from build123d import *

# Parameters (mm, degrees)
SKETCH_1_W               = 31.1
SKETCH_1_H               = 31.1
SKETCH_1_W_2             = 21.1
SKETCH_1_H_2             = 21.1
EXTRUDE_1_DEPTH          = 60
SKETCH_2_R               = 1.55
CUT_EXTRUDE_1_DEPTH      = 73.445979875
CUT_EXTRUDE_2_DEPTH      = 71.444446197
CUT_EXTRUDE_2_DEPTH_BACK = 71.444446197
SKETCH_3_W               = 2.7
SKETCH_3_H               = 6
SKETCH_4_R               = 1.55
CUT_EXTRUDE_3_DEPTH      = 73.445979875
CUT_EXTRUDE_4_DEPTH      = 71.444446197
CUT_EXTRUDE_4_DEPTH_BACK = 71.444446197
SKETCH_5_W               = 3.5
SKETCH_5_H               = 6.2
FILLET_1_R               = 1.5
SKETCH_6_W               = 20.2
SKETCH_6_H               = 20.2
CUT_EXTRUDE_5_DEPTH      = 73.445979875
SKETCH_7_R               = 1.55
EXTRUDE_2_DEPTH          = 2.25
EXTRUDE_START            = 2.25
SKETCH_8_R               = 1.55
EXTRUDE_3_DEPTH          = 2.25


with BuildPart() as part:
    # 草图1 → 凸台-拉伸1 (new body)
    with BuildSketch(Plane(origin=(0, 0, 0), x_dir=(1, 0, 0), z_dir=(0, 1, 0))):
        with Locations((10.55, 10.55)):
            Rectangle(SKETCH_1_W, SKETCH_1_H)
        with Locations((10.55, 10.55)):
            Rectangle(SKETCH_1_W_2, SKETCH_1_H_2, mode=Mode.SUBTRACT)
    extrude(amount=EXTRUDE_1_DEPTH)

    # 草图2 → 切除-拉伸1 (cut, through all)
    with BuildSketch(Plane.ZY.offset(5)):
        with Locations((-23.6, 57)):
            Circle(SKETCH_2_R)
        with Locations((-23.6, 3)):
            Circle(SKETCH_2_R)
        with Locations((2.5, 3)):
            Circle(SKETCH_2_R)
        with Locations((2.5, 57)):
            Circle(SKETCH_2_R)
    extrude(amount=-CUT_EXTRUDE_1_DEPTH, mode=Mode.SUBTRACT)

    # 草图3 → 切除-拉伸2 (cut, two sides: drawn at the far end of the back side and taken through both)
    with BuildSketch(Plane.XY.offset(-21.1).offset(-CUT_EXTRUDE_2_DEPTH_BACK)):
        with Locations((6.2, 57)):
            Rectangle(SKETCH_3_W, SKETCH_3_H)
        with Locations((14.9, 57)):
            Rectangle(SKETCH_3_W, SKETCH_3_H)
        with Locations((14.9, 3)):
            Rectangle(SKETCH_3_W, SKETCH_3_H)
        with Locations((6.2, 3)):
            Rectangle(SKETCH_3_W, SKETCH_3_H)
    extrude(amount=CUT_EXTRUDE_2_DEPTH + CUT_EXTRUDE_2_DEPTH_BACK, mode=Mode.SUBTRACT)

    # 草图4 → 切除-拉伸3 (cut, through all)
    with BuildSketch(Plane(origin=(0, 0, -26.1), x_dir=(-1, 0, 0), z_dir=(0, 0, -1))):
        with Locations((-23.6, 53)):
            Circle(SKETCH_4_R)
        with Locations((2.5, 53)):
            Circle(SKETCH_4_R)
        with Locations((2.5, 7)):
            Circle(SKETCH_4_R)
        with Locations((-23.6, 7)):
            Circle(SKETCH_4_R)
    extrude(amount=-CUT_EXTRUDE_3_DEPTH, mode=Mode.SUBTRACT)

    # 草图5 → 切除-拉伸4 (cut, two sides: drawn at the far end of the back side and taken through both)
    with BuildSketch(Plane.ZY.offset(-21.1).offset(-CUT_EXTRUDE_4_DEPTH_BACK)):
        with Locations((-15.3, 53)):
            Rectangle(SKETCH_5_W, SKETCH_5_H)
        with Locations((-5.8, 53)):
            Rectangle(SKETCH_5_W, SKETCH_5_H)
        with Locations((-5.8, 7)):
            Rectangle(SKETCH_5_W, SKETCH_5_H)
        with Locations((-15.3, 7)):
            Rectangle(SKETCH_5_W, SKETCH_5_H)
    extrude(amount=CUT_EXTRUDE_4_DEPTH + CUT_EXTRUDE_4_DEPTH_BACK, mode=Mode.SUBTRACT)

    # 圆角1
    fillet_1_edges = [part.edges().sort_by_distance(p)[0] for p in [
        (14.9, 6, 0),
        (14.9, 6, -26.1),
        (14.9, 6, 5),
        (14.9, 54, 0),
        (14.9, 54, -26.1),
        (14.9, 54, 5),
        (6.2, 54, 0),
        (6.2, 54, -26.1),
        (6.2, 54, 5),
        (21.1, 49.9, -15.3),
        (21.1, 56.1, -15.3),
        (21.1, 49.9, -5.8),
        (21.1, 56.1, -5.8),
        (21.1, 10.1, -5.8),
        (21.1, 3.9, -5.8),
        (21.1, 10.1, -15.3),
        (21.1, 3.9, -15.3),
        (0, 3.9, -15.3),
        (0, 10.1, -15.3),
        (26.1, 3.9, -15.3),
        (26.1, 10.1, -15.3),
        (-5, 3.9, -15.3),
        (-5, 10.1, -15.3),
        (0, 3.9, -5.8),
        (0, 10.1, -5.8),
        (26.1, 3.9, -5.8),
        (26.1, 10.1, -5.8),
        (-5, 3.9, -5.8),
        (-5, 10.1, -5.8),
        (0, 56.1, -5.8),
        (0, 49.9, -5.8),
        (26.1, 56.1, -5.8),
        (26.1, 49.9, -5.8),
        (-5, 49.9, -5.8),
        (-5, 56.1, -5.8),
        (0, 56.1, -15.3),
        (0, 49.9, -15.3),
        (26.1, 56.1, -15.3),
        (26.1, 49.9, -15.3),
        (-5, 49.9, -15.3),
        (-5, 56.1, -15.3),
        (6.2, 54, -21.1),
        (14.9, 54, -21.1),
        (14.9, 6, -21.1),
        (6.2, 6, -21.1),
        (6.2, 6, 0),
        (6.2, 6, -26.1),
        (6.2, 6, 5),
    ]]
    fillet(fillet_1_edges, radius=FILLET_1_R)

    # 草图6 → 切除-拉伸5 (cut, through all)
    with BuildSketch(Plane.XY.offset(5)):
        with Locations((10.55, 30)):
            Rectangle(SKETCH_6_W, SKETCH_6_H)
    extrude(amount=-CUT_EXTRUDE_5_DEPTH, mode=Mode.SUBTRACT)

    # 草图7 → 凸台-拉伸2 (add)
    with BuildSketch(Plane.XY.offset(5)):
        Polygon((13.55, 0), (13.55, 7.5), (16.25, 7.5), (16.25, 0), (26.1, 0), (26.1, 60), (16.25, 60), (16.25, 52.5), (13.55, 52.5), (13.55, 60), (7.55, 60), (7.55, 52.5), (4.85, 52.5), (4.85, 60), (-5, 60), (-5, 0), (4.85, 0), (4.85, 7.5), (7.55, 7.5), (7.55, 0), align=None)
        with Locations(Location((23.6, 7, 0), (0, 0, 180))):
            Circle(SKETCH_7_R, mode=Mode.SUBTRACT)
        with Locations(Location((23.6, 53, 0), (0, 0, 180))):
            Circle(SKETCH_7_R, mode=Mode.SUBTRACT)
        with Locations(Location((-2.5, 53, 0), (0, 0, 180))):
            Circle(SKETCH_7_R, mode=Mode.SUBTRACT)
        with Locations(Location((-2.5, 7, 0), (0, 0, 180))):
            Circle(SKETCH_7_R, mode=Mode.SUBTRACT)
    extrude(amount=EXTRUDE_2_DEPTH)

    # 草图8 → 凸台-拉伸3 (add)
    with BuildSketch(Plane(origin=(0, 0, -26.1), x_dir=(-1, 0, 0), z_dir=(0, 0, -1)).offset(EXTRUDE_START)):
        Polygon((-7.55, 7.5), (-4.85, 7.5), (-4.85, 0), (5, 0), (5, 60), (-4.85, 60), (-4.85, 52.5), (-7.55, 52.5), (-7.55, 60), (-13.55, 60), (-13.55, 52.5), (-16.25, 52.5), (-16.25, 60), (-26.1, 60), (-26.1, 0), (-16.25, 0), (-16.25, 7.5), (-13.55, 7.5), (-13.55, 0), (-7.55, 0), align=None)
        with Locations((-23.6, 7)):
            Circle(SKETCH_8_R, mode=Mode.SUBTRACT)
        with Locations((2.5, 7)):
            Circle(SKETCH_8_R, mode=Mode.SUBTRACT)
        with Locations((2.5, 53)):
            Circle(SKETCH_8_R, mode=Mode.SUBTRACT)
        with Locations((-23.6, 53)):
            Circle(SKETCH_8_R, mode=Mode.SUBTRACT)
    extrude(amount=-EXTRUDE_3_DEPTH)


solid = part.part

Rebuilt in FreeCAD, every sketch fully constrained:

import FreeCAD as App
import Part
import Sketcher
from FreeCAD import Vector
Q = App.Units.Quantity


def edges_at(feature, points):
    """Names of the edges that pass closest to the given points."""
    edges = feature.Shape.Edges
    near = lambda p: min(range(len(edges)), key=lambda i: edges[i].distToShape(Part.Vertex(*p))[0])
    return sorted({f"Edge{near(p) + 1}" for p in points})

doc = App.newDocument("Part")
params = doc.addObject("Spreadsheet::Sheet", "Params")
for row, (alias, value) in enumerate([
    ("sketch1_width", "31.1 mm"),
    ("sketch1_width2", "21.1 mm"),
    ("pad1_length", "60 mm"),
    ("sketch2_diameter", "3.1 mm"),
    ("sketch3_height", "6 mm"),
    ("sketch3_width", "2.7 mm"),
    ("sketch4_diameter", "3.1 mm"),
    ("sketch5_width", "6.2 mm"),
    ("sketch5_height", "3.5 mm"),
    ("fillet_radius", "1.5 mm"),
    ("sketch6_width", "20.2 mm"),
    ("sketch7_diameter", "3.1 mm"),
    ("sketch7_width", "6 mm"),
    ("sketch7_height", "60 mm"),
    ("sketch7_width2", "2.7 mm"),
    ("sketch7_height2", "7.5 mm"),
    ("pad2_length", "2.25 mm"),
    ("sketch8_diameter", "3.1 mm"),
    ("sketch8_width", "6 mm"),
    ("sketch8_height", "60 mm"),
    ("sketch8_width2", "2.7 mm"),
    ("sketch8_height2", "7.5 mm"),
    ("pad3_length", "2.25 mm"),
], start=1):
    params.set(f"A{row}", alias)
    params.set(f"B{row}", "=" + value)
    params.setAlias(f"B{row}", alias)

body = doc.addObject("PartDesign::Body", "Body")

# Sketch on XZ plane
sketch1 = body.newObject("Sketcher::SketchObject", "Sketch")
sketch1.AttachmentSupport = (doc.getObject("XZ_Plane"), [""])
sketch1.MapMode = "FlatFace"
sketch1.addGeometry([
    Part.LineSegment(Vector(-5, -26, 0), Vector(-5, 5, 0)),  # 0
    Part.LineSegment(Vector(-5, 5, 0), Vector(26, 5, 0)),  # 1
    Part.LineSegment(Vector(26, 5, 0), Vector(26, -26, 0)),  # 2
    Part.LineSegment(Vector(26, -26, 0), Vector(-5, -26, 0)),  # 3
    Part.LineSegment(Vector(21, 0, 0), Vector(0, 0, 0)),  # 4
    Part.LineSegment(Vector(0, 0, 0), Vector(0, -21, 0)),  # 5
    Part.LineSegment(Vector(0, -21, 0), Vector(21, -21, 0)),  # 6
    Part.LineSegment(Vector(21, -21, 0), Vector(21, 0, 0)),  # 7
], False)
sketch1.addConstraint([
    Sketcher.Constraint("Coincident", 0, 2, 1, 1),
    Sketcher.Constraint("Coincident", 1, 2, 2, 1),
    Sketcher.Constraint("Coincident", 2, 2, 3, 1),
    Sketcher.Constraint("Coincident", 3, 2, 0, 1),
    Sketcher.Constraint("Coincident", 4, 2, 5, 1),
    Sketcher.Constraint("Coincident", 5, 2, 6, 1),
    Sketcher.Constraint("Coincident", 6, 2, 7, 1),
    Sketcher.Constraint("Coincident", 7, 2, 4, 1),
    Sketcher.Constraint("Vertical", 0),
    Sketcher.Constraint("Horizontal", 1),
    Sketcher.Constraint("Vertical", 2),
    Sketcher.Constraint("Horizontal", 3),
    Sketcher.Constraint("Horizontal", 4),
    Sketcher.Constraint("Vertical", 5),
    Sketcher.Constraint("Horizontal", 6),
    Sketcher.Constraint("Vertical", 7),
    Sketcher.Constraint("Coincident", 4, 2, -1, 1),
    Sketcher.Constraint("Equal", 3, 0),
    Sketcher.Constraint("Equal", 6, 5),
    Sketcher.Constraint("DistanceX", 1, 1, 1, 2, Q("31.1 mm")),
    Sketcher.Constraint("DistanceX", 4, 2, 4, 1, Q("21.1 mm")),
    Sketcher.Constraint("DistanceX", 0, 2, -1, 1, Q("5 mm")),
    Sketcher.Constraint("DistanceY", -1, 1, 0, 2, Q("5 mm")),
])
sketch1.setExpression("Constraints[19]", "Params.sketch1_width")
sketch1.setExpression("Constraints[20]", "Params.sketch1_width2")
pad1 = body.newObject("PartDesign::Pad", "Pad")
pad1.Profile = sketch1
pad1.setExpression("Length", "Params.pad1_length")
pad1.Reversed = True

# Sketch on YZ plane
sketch2 = body.newObject("Sketcher::SketchObject", "Sketch001")
sketch2.AttachmentSupport = (doc.getObject("YZ_Plane"), [""])
sketch2.MapMode = "FlatFace"
sketch2.AttachmentOffset = App.Placement(Vector(0, 0, -5), App.Rotation())
sketch2.addGeometry([
    Part.Circle(Vector(57, -23.6, 0), Vector(0, 0, 1), 1.6),
    Part.Circle(Vector(3, -23.6, 0), Vector(0, 0, 1), 1.6),
    Part.Circle(Vector(3, 2.5, 0), Vector(0, 0, 1), 1.6),
    Part.Circle(Vector(57, 2.5, 0), Vector(0, 0, 1), 1.6),
], False)
sketch2.addConstraint([
    Sketcher.Constraint("Equal", 0, 1),
    Sketcher.Constraint("Equal", 1, 2),
    Sketcher.Constraint("Equal", 2, 3),
    Sketcher.Constraint("Horizontal", 0, 3, 1, 3),
    Sketcher.Constraint("Horizontal", 2, 3, 3, 3),
    Sketcher.Constraint("Vertical", 1, 3, 2, 3),
    Sketcher.Constraint("Vertical", 0, 3, 3, 3),
    Sketcher.Constraint("Diameter", 0, Q("3.1 mm")),
    Sketcher.Constraint("DistanceX", -1, 1, 0, 3, Q("57 mm")),
    Sketcher.Constraint("DistanceX", -1, 1, 1, 3, Q("3 mm")),
    Sketcher.Constraint("DistanceY", 0, 3, -1, 1, Q("23.6 mm")),
    Sketcher.Constraint("DistanceY", -1, 1, 2, 3, Q("2.5 mm")),
])
sketch2.setExpression("Constraints[7]", "Params.sketch2_diameter")
pocket1 = body.newObject("PartDesign::Pocket", "Pocket")
pocket1.Profile = sketch2
pocket1.Type = "ThroughAll"
pocket1.Reversed = True

# Sketch on XY plane
sketch3 = body.newObject("Sketcher::SketchObject", "Sketch002")
sketch3.AttachmentSupport = (doc.getObject("XY_Plane"), [""])
sketch3.MapMode = "FlatFace"
sketch3.AttachmentOffset = App.Placement(Vector(0, 0, -21.1), App.Rotation())
sketch3.addGeometry([
    Part.LineSegment(Vector(4.8, 60, 0), Vector(4.8, 54, 0)),  # 0
    Part.LineSegment(Vector(4.8, 54, 0), Vector(7.5, 54, 0)),  # 1
    Part.LineSegment(Vector(7.5, 54, 0), Vector(7.5, 60, 0)),  # 2
    Part.LineSegment(Vector(7.5, 60, 0), Vector(4.8, 60, 0)),  # 3
    Part.LineSegment(Vector(13.6, 60, 0), Vector(13.6, 54, 0)),  # 4
    Part.LineSegment(Vector(13.6, 54, 0), Vector(16.2, 54, 0)),  # 5
    Part.LineSegment(Vector(16.2, 54, 0), Vector(16.2, 60, 0)),  # 6
    Part.LineSegment(Vector(16.2, 60, 0), Vector(13.6, 60, 0)),  # 7
    Part.LineSegment(Vector(13.6, 6, 0), Vector(13.6, 0, 0)),  # 8
    Part.LineSegment(Vector(13.6, 0, 0), Vector(16.2, 0, 0)),  # 9
    Part.LineSegment(Vector(16.2, 0, 0), Vector(16.2, 6, 0)),  # 10
    Part.LineSegment(Vector(16.2, 6, 0), Vector(13.6, 6, 0)),  # 11
    Part.LineSegment(Vector(4.8, 6, 0), Vector(4.8, 0, 0)),  # 12
    Part.LineSegment(Vector(4.8, 0, 0), Vector(7.5, 0, 0)),  # 13
    Part.LineSegment(Vector(7.5, 0, 0), Vector(7.5, 6, 0)),  # 14
    Part.LineSegment(Vector(7.5, 6, 0), Vector(4.8, 6, 0)),  # 15
], False)
sketch3.addConstraint([
    Sketcher.Constraint("Coincident", 0, 2, 1, 1),
    Sketcher.Constraint("Coincident", 1, 2, 2, 1),
    Sketcher.Constraint("Coincident", 2, 2, 3, 1),
    Sketcher.Constraint("Coincident", 3, 2, 0, 1),
    Sketcher.Constraint("Coincident", 4, 2, 5, 1),
    Sketcher.Constraint("Coincident", 5, 2, 6, 1),
    Sketcher.Constraint("Coincident", 6, 2, 7, 1),
    Sketcher.Constraint("Coincident", 7, 2, 4, 1),
    Sketcher.Constraint("Coincident", 8, 2, 9, 1),
    Sketcher.Constraint("Coincident", 9, 2, 10, 1),
    Sketcher.Constraint("Coincident", 10, 2, 11, 1),
    Sketcher.Constraint("Coincident", 11, 2, 8, 1),
    Sketcher.Constraint("Coincident", 12, 2, 13, 1),
    Sketcher.Constraint("Coincident", 13, 2, 14, 1),
    Sketcher.Constraint("Coincident", 14, 2, 15, 1),
    Sketcher.Constraint("Coincident", 15, 2, 12, 1),
    Sketcher.Constraint("Vertical", 0),
    Sketcher.Constraint("Horizontal", 1),
    Sketcher.Constraint("Vertical", 2),
    Sketcher.Constraint("Horizontal", 3),
    Sketcher.Constraint("Vertical", 4),
    Sketcher.Constraint("Horizontal", 5),
    Sketcher.Constraint("Vertical", 6),
    Sketcher.Constraint("Horizontal", 7),
    Sketcher.Constraint("Vertical", 8),
    Sketcher.Constraint("Horizontal", 9),
    Sketcher.Constraint("Vertical", 10),
    Sketcher.Constraint("Horizontal", 11),
    Sketcher.Constraint("Vertical", 12),
    Sketcher.Constraint("Horizontal", 13),
    Sketcher.Constraint("Vertical", 14),
    Sketcher.Constraint("Horizontal", 15),
    Sketcher.Constraint("PointOnObject", 8, 2, -1),
    Sketcher.Constraint("PointOnObject", 12, 2, -1),
    Sketcher.Constraint("Horizontal", 1, 2, 4, 2),
    Sketcher.Constraint("Horizontal", 3, 2, 6, 2),
    Sketcher.Constraint("Horizontal", 11, 2, 14, 2),
    Sketcher.Constraint("Vertical", 7, 2, 8, 2),
    Sketcher.Constraint("Vertical", 6, 2, 9, 2),
    Sketcher.Constraint("Vertical", 3, 2, 12, 2),
    Sketcher.Constraint("Vertical", 2, 2, 13, 2),
    Sketcher.Constraint("Equal", 3, 5),
    Sketcher.Constraint("Equal", 6, 8),
    Sketcher.Constraint("DistanceY", 0, 2, 0, 1, Q("6 mm")),
    Sketcher.Constraint("DistanceX", 1, 1, 1, 2, Q("2.7 mm")),
    Sketcher.Constraint("DistanceY", -1, 1, 0, 2, Q("54 mm")),
    Sketcher.Constraint("DistanceX", 1, 2, 4, 2, Q("6 mm")),
    Sketcher.Constraint("DistanceX", -1, 1, 0, 2, Q("4.85 mm")),
])
sketch3.setExpression("Constraints[43]", "Params.sketch3_height")
sketch3.setExpression("Constraints[44]", "Params.sketch3_width")
pocket2 = body.newObject("PartDesign::Pocket", "Pocket001")
pocket2.Profile = sketch3
pocket2.Type = "ThroughAll"
pocket2.Midplane = True

# Sketch on XY plane
sketch4 = body.newObject("Sketcher::SketchObject", "Sketch003")
sketch4.AttachmentSupport = (doc.getObject("XY_Plane"), [""])
sketch4.MapMode = "FlatFace"
sketch4.AttachmentOffset = App.Placement(Vector(0, 0, -26.1), App.Rotation())
sketch4.addGeometry([
    Part.Circle(Vector(23.6, 53, 0), Vector(0, 0, 1), 1.6),
    Part.Circle(Vector(-2.5, 53, 0), Vector(0, 0, 1), 1.6),
    Part.Circle(Vector(-2.5, 7, 0), Vector(0, 0, 1), 1.6),
    Part.Circle(Vector(23.6, 7, 0), Vector(0, 0, 1), 1.6),
], False)
sketch4.addConstraint([
    Sketcher.Constraint("Equal", 0, 1),
    Sketcher.Constraint("Equal", 1, 2),
    Sketcher.Constraint("Equal", 2, 3),
    Sketcher.Constraint("Horizontal", 0, 3, 1, 3),
    Sketcher.Constraint("Horizontal", 2, 3, 3, 3),
    Sketcher.Constraint("Vertical", 1, 3, 2, 3),
    Sketcher.Constraint("Vertical", 0, 3, 3, 3),
    Sketcher.Constraint("Diameter", 0, Q("3.1 mm")),
    Sketcher.Constraint("DistanceY", -1, 1, 0, 3, Q("53 mm")),
    Sketcher.Constraint("DistanceY", -1, 1, 2, 3, Q("7 mm")),
    Sketcher.Constraint("DistanceX", -1, 1, 0, 3, Q("23.6 mm")),
    Sketcher.Constraint("DistanceX", 1, 3, -1, 1, Q("2.5 mm")),
])
sketch4.setExpression("Constraints[7]", "Params.sketch4_diameter")
pocket3 = body.newObject("PartDesign::Pocket", "Pocket002")
pocket3.Profile = sketch4
pocket3.Type = "ThroughAll"
pocket3.Reversed = True

# Sketch on YZ plane
sketch5 = body.newObject("Sketcher::SketchObject", "Sketch004")
sketch5.AttachmentSupport = (doc.getObject("YZ_Plane"), [""])
sketch5.MapMode = "FlatFace"
sketch5.AttachmentOffset = App.Placement(Vector(0, 0, 21.1), App.Rotation())
sketch5.addGeometry([
    Part.LineSegment(Vector(56.1, -17.1, 0), Vector(49.9, -17.1, 0)),  # 0
    Part.LineSegment(Vector(49.9, -17.1, 0), Vector(49.9, -13.6, 0)),  # 1
    Part.LineSegment(Vector(49.9, -13.6, 0), Vector(56.1, -13.6, 0)),  # 2
    Part.LineSegment(Vector(56.1, -13.6, 0), Vector(56.1, -17.1, 0)),  # 3
    Part.LineSegment(Vector(56.1, -7.5, 0), Vector(49.9, -7.5, 0)),  # 4
    Part.LineSegment(Vector(49.9, -7.5, 0), Vector(49.9, -4, 0)),  # 5
    Part.LineSegment(Vector(49.9, -4, 0), Vector(56.1, -4, 0)),  # 6
    Part.LineSegment(Vector(56.1, -4, 0), Vector(56.1, -7.5, 0)),  # 7
    Part.LineSegment(Vector(10.1, -7.5, 0), Vector(3.9, -7.5, 0)),  # 8
    Part.LineSegment(Vector(3.9, -7.5, 0), Vector(3.9, -4, 0)),  # 9
    Part.LineSegment(Vector(3.9, -4, 0), Vector(10.1, -4, 0)),  # 10
    Part.LineSegment(Vector(10.1, -4, 0), Vector(10.1, -7.5, 0)),  # 11
    Part.LineSegment(Vector(10.1, -17.1, 0), Vector(3.9, -17.1, 0)),  # 12
    Part.LineSegment(Vector(3.9, -17.1, 0), Vector(3.9, -13.6, 0)),  # 13
    Part.LineSegment(Vector(3.9, -13.6, 0), Vector(10.1, -13.6, 0)),  # 14
    Part.LineSegment(Vector(10.1, -13.6, 0), Vector(10.1, -17.1, 0)),  # 15
], False)
sketch5.addConstraint([
    Sketcher.Constraint("Coincident", 0, 2, 1, 1),
    Sketcher.Constraint("Coincident", 1, 2, 2, 1),
    Sketcher.Constraint("Coincident", 2, 2, 3, 1),
    Sketcher.Constraint("Coincident", 3, 2, 0, 1),
    Sketcher.Constraint("Coincident", 4, 2, 5, 1),
    Sketcher.Constraint("Coincident", 5, 2, 6, 1),
    Sketcher.Constraint("Coincident", 6, 2, 7, 1),
    Sketcher.Constraint("Coincident", 7, 2, 4, 1),
    Sketcher.Constraint("Coincident", 8, 2, 9, 1),
    Sketcher.Constraint("Coincident", 9, 2, 10, 1),
    Sketcher.Constraint("Coincident", 10, 2, 11, 1),
    Sketcher.Constraint("Coincident", 11, 2, 8, 1),
    Sketcher.Constraint("Coincident", 12, 2, 13, 1),
    Sketcher.Constraint("Coincident", 13, 2, 14, 1),
    Sketcher.Constraint("Coincident", 14, 2, 15, 1),
    Sketcher.Constraint("Coincident", 15, 2, 12, 1),
    Sketcher.Constraint("Horizontal", 0),
    Sketcher.Constraint("Vertical", 1),
    Sketcher.Constraint("Horizontal", 2),
    Sketcher.Constraint("Vertical", 3),
    Sketcher.Constraint("Horizontal", 4),
    Sketcher.Constraint("Vertical", 5),
    Sketcher.Constraint("Horizontal", 6),
    Sketcher.Constraint("Vertical", 7),
    Sketcher.Constraint("Horizontal", 8),
    Sketcher.Constraint("Vertical", 9),
    Sketcher.Constraint("Horizontal", 10),
    Sketcher.Constraint("Vertical", 11),
    Sketcher.Constraint("Horizontal", 12),
    Sketcher.Constraint("Vertical", 13),
    Sketcher.Constraint("Horizontal", 14),
    Sketcher.Constraint("Vertical", 15),
    Sketcher.Constraint("Horizontal", 7, 2, 8, 2),
    Sketcher.Constraint("Horizontal", 6, 2, 9, 2),
    Sketcher.Constraint("Horizontal", 3, 2, 12, 2),
    Sketcher.Constraint("Horizontal", 2, 2, 13, 2),
    Sketcher.Constraint("Vertical", 1, 2, 4, 2),
    Sketcher.Constraint("Vertical", 3, 2, 6, 2),
    Sketcher.Constraint("Vertical", 9, 2, 12, 2),
    Sketcher.Constraint("Vertical", 11, 2, 14, 2),
    Sketcher.Constraint("Equal", 6, 8),
    Sketcher.Constraint("Equal", 3, 5),
    Sketcher.Constraint("DistanceX", 0, 2, 0, 1, Q("6.2 mm")),
    Sketcher.Constraint("DistanceY", 1, 1, 1, 2, Q("3.5 mm")),
    Sketcher.Constraint("DistanceY", 1, 2, 4, 2, Q("6 mm")),
    Sketcher.Constraint("DistanceX", 8, 2, 4, 2, Q("46 mm")),
    Sketcher.Constraint("DistanceX", -1, 1, 0, 2, Q("49.9 mm")),
    Sketcher.Constraint("DistanceY", 0, 2, -1, 1, Q("17.05 mm")),
])
sketch5.setExpression("Constraints[42]", "Params.sketch5_width")
sketch5.setExpression("Constraints[43]", "Params.sketch5_height")
pocket4 = body.newObject("PartDesign::Pocket", "Pocket003")
pocket4.Profile = sketch5
pocket4.Type = "ThroughAll"
pocket4.Midplane = True
doc.recompute()

fillet = body.newObject("PartDesign::Fillet", "Fillet")
fillet.Base = (pocket4, edges_at(pocket4, [
    (14.9, 6, 0),
    (14.9, 6, -26.1),
    (14.9, 6, 5),
    (14.9, 54, 0),
    (14.9, 54, -26.1),
    (14.9, 54, 5),
    (6.2, 54, 0),
    (6.2, 54, -26.1),
    (6.2, 54, 5),
    (21.1, 49.9, -15.3),
    (21.1, 56.1, -15.3),
    (21.1, 49.9, -5.8),
    (21.1, 56.1, -5.8),
    (21.1, 10.1, -5.8),
    (21.1, 3.9, -5.8),
    (21.1, 10.1, -15.3),
    (21.1, 3.9, -15.3),
    (0, 3.9, -15.3),
    (0, 10.1, -15.3),
    (26.1, 3.9, -15.3),
    (26.1, 10.1, -15.3),
    (-5, 3.9, -15.3),
    (-5, 10.1, -15.3),
    (0, 3.9, -5.8),
    (0, 10.1, -5.8),
    (26.1, 3.9, -5.8),
    (26.1, 10.1, -5.8),
    (-5, 3.9, -5.8),
    (-5, 10.1, -5.8),
    (0, 56.1, -5.8),
    (0, 49.9, -5.8),
    (26.1, 56.1, -5.8),
    (26.1, 49.9, -5.8),
    (-5, 49.9, -5.8),
    (-5, 56.1, -5.8),
    (0, 56.1, -15.3),
    (0, 49.9, -15.3),
    (26.1, 56.1, -15.3),
    (26.1, 49.9, -15.3),
    (-5, 49.9, -15.3),
    (-5, 56.1, -15.3),
    (6.2, 54, -21.1),
    (14.9, 54, -21.1),
    (14.9, 6, -21.1),
    (6.2, 6, -21.1),
    (6.2, 6, 0),
    (6.2, 6, -26.1),
    (6.2, 6, 5),
]))
fillet.setExpression("Radius", "Params.fillet_radius")

# Sketch on XY plane
sketch6 = body.newObject("Sketcher::SketchObject", "Sketch005")
sketch6.AttachmentSupport = (doc.getObject("XY_Plane"), [""])
sketch6.MapMode = "FlatFace"
sketch6.AttachmentOffset = App.Placement(Vector(0, 0, 5), App.Rotation())
sketch6.addGeometry([
    Part.LineSegment(Vector(0, 40, 0), Vector(0, 20, 0)),
    Part.LineSegment(Vector(0, 20, 0), Vector(21, 20, 0)),
    Part.LineSegment(Vector(21, 20, 0), Vector(21, 40, 0)),
    Part.LineSegment(Vector(21, 40, 0), Vector(0, 40, 0)),
], False)
sketch6.addConstraint([
    Sketcher.Constraint("Coincident", 0, 2, 1, 1),
    Sketcher.Constraint("Coincident", 1, 2, 2, 1),
    Sketcher.Constraint("Coincident", 2, 2, 3, 1),
    Sketcher.Constraint("Coincident", 3, 2, 0, 1),
    Sketcher.Constraint("Vertical", 0),
    Sketcher.Constraint("Horizontal", 1),
    Sketcher.Constraint("Vertical", 2),
    Sketcher.Constraint("Horizontal", 3),
    Sketcher.Constraint("Equal", 3, 0),
    Sketcher.Constraint("DistanceX", 1, 1, 1, 2, Q("20.2 mm")),
    Sketcher.Constraint("DistanceY", -1, 1, 0, 2, Q("19.9 mm")),
    Sketcher.Constraint("DistanceX", -1, 1, 0, 2, Q("0.45 mm")),
])
sketch6.setExpression("Constraints[9]", "Params.sketch6_width")
pocket5 = body.newObject("PartDesign::Pocket", "Pocket004")
pocket5.Profile = sketch6
pocket5.Type = "ThroughAll"

# Sketch on XY plane
sketch7 = body.newObject("Sketcher::SketchObject", "Sketch006")
sketch7.AttachmentSupport = (doc.getObject("XY_Plane"), [""])
sketch7.MapMode = "FlatFace"
sketch7.AttachmentOffset = App.Placement(Vector(0, 0, 5), App.Rotation())
sketch7.addGeometry([
    Part.LineSegment(Vector(13.6, 0, 0), Vector(13.6, 7.5, 0)),  # 0
    Part.LineSegment(Vector(13.6, 7.5, 0), Vector(16.2, 7.5, 0)),  # 1
    Part.LineSegment(Vector(16.2, 7.5, 0), Vector(16.2, 0, 0)),  # 2
    Part.LineSegment(Vector(16.2, 0, 0), Vector(26.1, 0, 0)),  # 3
    Part.LineSegment(Vector(26.1, 0, 0), Vector(26.1, 60, 0)),  # 4
    Part.LineSegment(Vector(26.1, 60, 0), Vector(16.2, 60, 0)),  # 5
    Part.LineSegment(Vector(16.2, 60, 0), Vector(16.2, 52.5, 0)),  # 6
    Part.LineSegment(Vector(16.2, 52.5, 0), Vector(13.6, 52.5, 0)),  # 7
    Part.LineSegment(Vector(13.6, 52.5, 0), Vector(13.6, 60, 0)),  # 8
    Part.LineSegment(Vector(13.6, 60, 0), Vector(7.5, 60, 0)),  # 9
    Part.LineSegment(Vector(7.5, 60, 0), Vector(7.5, 52.5, 0)),  # 10
    Part.LineSegment(Vector(7.5, 52.5, 0), Vector(4.8, 52.5, 0)),  # 11
    Part.LineSegment(Vector(4.8, 52.5, 0), Vector(4.8, 60, 0)),  # 12
    Part.LineSegment(Vector(4.8, 60, 0), Vector(-5, 60, 0)),  # 13
    Part.LineSegment(Vector(-5, 60, 0), Vector(-5, 0, 0)),  # 14
    Part.LineSegment(Vector(-5, 0, 0), Vector(4.8, 0, 0)),  # 15
    Part.LineSegment(Vector(4.8, 0, 0), Vector(4.8, 7.5, 0)),  # 16
    Part.LineSegment(Vector(4.8, 7.5, 0), Vector(7.5, 7.5, 0)),  # 17
    Part.LineSegment(Vector(7.5, 7.5, 0), Vector(7.5, 0, 0)),  # 18
    Part.LineSegment(Vector(7.5, 0, 0), Vector(13.6, 0, 0)),  # 19
    Part.Circle(Vector(-2.5, 7, 0), Vector(0, 0, 1), 1.6),  # 20
    Part.Circle(Vector(23.6, 7, 0), Vector(0, 0, 1), 1.6),  # 21
    Part.Circle(Vector(-2.5, 53, 0), Vector(0, 0, 1), 1.6),  # 22
    Part.Circle(Vector(23.6, 53, 0), Vector(0, 0, 1), 1.6),  # 23
], False)
sketch7.addConstraint([
    Sketcher.Constraint("Coincident", 0, 2, 1, 1),
    Sketcher.Constraint("Coincident", 1, 2, 2, 1),
    Sketcher.Constraint("Coincident", 2, 2, 3, 1),
    Sketcher.Constraint("Coincident", 3, 2, 4, 1),
    Sketcher.Constraint("Coincident", 4, 2, 5, 1),
    Sketcher.Constraint("Coincident", 5, 2, 6, 1),
    Sketcher.Constraint("Coincident", 6, 2, 7, 1),
    Sketcher.Constraint("Coincident", 7, 2, 8, 1),
    Sketcher.Constraint("Coincident", 8, 2, 9, 1),
    Sketcher.Constraint("Coincident", 9, 2, 10, 1),
    Sketcher.Constraint("Coincident", 10, 2, 11, 1),
    Sketcher.Constraint("Coincident", 11, 2, 12, 1),
    Sketcher.Constraint("Coincident", 12, 2, 13, 1),
    Sketcher.Constraint("Coincident", 13, 2, 14, 1),
    Sketcher.Constraint("Coincident", 14, 2, 15, 1),
    Sketcher.Constraint("Coincident", 15, 2, 16, 1),
    Sketcher.Constraint("Coincident", 16, 2, 17, 1),
    Sketcher.Constraint("Coincident", 17, 2, 18, 1),
    Sketcher.Constraint("Coincident", 18, 2, 19, 1),
    Sketcher.Constraint("Coincident", 19, 2, 0, 1),
    Sketcher.Constraint("Vertical", 0),
    Sketcher.Constraint("Horizontal", 1),
    Sketcher.Constraint("Vertical", 2),
    Sketcher.Constraint("Horizontal", 3),
    Sketcher.Constraint("Vertical", 4),
    Sketcher.Constraint("Horizontal", 5),
    Sketcher.Constraint("Vertical", 6),
    Sketcher.Constraint("Horizontal", 7),
    Sketcher.Constraint("Vertical", 8),
    Sketcher.Constraint("Horizontal", 9),
    Sketcher.Constraint("Vertical", 10),
    Sketcher.Constraint("Horizontal", 11),
    Sketcher.Constraint("Vertical", 12),
    Sketcher.Constraint("Horizontal", 13),
    Sketcher.Constraint("Vertical", 14),
    Sketcher.Constraint("Horizontal", 15),
    Sketcher.Constraint("Vertical", 16),
    Sketcher.Constraint("Horizontal", 17),
    Sketcher.Constraint("Vertical", 18),
    Sketcher.Constraint("Horizontal", 19),
    Sketcher.Constraint("Equal", 20, 21),
    Sketcher.Constraint("Equal", 21, 22),
    Sketcher.Constraint("Equal", 22, 23),
    Sketcher.Constraint("PointOnObject", 2, 2, -1),
    Sketcher.Constraint("PointOnObject", 14, 2, -1),
    Sketcher.Constraint("PointOnObject", 18, 2, -1),
    Sketcher.Constraint("Horizontal", 20, 3, 21, 3),
    Sketcher.Constraint("Horizontal", 22, 3, 23, 3),
    Sketcher.Constraint("Horizontal", 5, 2, 8, 2),
    Sketcher.Constraint("Horizontal", 7, 2, 10, 2),
    Sketcher.Constraint("Horizontal", 9, 2, 12, 2),
    Sketcher.Constraint("Horizontal", 1, 2, 16, 2),
    Sketcher.Constraint("Vertical", 20, 3, 22, 3),
    Sketcher.Constraint("Vertical", 21, 3, 23, 3),
    Sketcher.Constraint("Vertical", 2, 2, 5, 2),
    Sketcher.Constraint("Vertical", 0, 2, 7, 2),
    Sketcher.Constraint("Vertical", 12, 2, 15, 2),
    Sketcher.Constraint("Vertical", 10, 2, 17, 2),
    Sketcher.Constraint("Equal", 7, 11),
    Sketcher.Constraint("Equal", 5, 13),
    Sketcher.Constraint("Equal", 2, 6),
    Sketcher.Constraint("Diameter", 20, Q("3.1 mm")),
    Sketcher.Constraint("DistanceX", 9, 2, 9, 1, Q("6 mm")),
    Sketcher.Constraint("DistanceY", 4, 1, 4, 2, Q("60 mm")),
    Sketcher.Constraint("DistanceX", 1, 1, 1, 2, Q("2.7 mm")),
    Sketcher.Constraint("DistanceY", 0, 1, 0, 2, Q("7.5 mm")),
    Sketcher.Constraint("DistanceY", -1, 1, 20, 3, Q("7 mm")),
    Sketcher.Constraint("DistanceY", -1, 1, 22, 3, Q("53 mm")),
    Sketcher.Constraint("DistanceX", 13, 2, -1, 1, Q("5 mm")),
    Sketcher.Constraint("DistanceX", 3, 1, 3, 2, Q("9.85 mm")),
    Sketcher.Constraint("DistanceX", 20, 3, -1, 1, Q("2.5 mm")),
    Sketcher.Constraint("DistanceX", -1, 1, 21, 3, Q("23.6 mm")),
])
sketch7.setExpression("Constraints[61]", "Params.sketch7_diameter")
sketch7.setExpression("Constraints[62]", "Params.sketch7_width")
sketch7.setExpression("Constraints[63]", "Params.sketch7_height")
sketch7.setExpression("Constraints[64]", "Params.sketch7_width2")
sketch7.setExpression("Constraints[65]", "Params.sketch7_height2")
pad2 = body.newObject("PartDesign::Pad", "Pad001")
pad2.Profile = sketch7
pad2.setExpression("Length", "Params.pad2_length")

# Sketch on XY plane
sketch8 = body.newObject("Sketcher::SketchObject", "Sketch007")
sketch8.AttachmentSupport = (doc.getObject("XY_Plane"), [""])
sketch8.MapMode = "FlatFace"
sketch8.AttachmentOffset = App.Placement(Vector(0, 0, -28.35), App.Rotation())
sketch8.addGeometry([
    Part.LineSegment(Vector(7.5, 7.5, 0), Vector(4.8, 7.5, 0)),  # 0
    Part.LineSegment(Vector(4.8, 7.5, 0), Vector(4.8, 0, 0)),  # 1
    Part.LineSegment(Vector(4.8, 0, 0), Vector(-5, 0, 0)),  # 2
    Part.LineSegment(Vector(-5, 0, 0), Vector(-5, 60, 0)),  # 3
    Part.LineSegment(Vector(-5, 60, 0), Vector(4.8, 60, 0)),  # 4
    Part.LineSegment(Vector(4.8, 60, 0), Vector(4.8, 52.5, 0)),  # 5
    Part.LineSegment(Vector(4.8, 52.5, 0), Vector(7.5, 52.5, 0)),  # 6
    Part.LineSegment(Vector(7.5, 52.5, 0), Vector(7.5, 60, 0)),  # 7
    Part.LineSegment(Vector(7.5, 60, 0), Vector(13.6, 60, 0)),  # 8
    Part.LineSegment(Vector(13.6, 60, 0), Vector(13.6, 52.5, 0)),  # 9
    Part.LineSegment(Vector(13.6, 52.5, 0), Vector(16.2, 52.5, 0)),  # 10
    Part.LineSegment(Vector(16.2, 52.5, 0), Vector(16.2, 60, 0)),  # 11
    Part.LineSegment(Vector(16.2, 60, 0), Vector(26.1, 60, 0)),  # 12
    Part.LineSegment(Vector(26.1, 60, 0), Vector(26.1, 0, 0)),  # 13
    Part.LineSegment(Vector(26.1, 0, 0), Vector(16.2, 0, 0)),  # 14
    Part.LineSegment(Vector(16.2, 0, 0), Vector(16.2, 7.5, 0)),  # 15
    Part.LineSegment(Vector(16.2, 7.5, 0), Vector(13.6, 7.5, 0)),  # 16
    Part.LineSegment(Vector(13.6, 7.5, 0), Vector(13.6, 0, 0)),  # 17
    Part.LineSegment(Vector(13.6, 0, 0), Vector(7.5, 0, 0)),  # 18
    Part.LineSegment(Vector(7.5, 0, 0), Vector(7.5, 7.5, 0)),  # 19
    Part.Circle(Vector(23.6, 7, 0), Vector(0, 0, 1), 1.6),  # 20
    Part.Circle(Vector(-2.5, 7, 0), Vector(0, 0, 1), 1.6),  # 21
    Part.Circle(Vector(23.6, 53, 0), Vector(0, 0, 1), 1.6),  # 22
    Part.Circle(Vector(-2.5, 53, 0), Vector(0, 0, 1), 1.6),  # 23
], False)
sketch8.addConstraint([
    Sketcher.Constraint("Coincident", 0, 2, 1, 1),
    Sketcher.Constraint("Coincident", 1, 2, 2, 1),
    Sketcher.Constraint("Coincident", 2, 2, 3, 1),
    Sketcher.Constraint("Coincident", 3, 2, 4, 1),
    Sketcher.Constraint("Coincident", 4, 2, 5, 1),
    Sketcher.Constraint("Coincident", 5, 2, 6, 1),
    Sketcher.Constraint("Coincident", 6, 2, 7, 1),
    Sketcher.Constraint("Coincident", 7, 2, 8, 1),
    Sketcher.Constraint("Coincident", 8, 2, 9, 1),
    Sketcher.Constraint("Coincident", 9, 2, 10, 1),
    Sketcher.Constraint("Coincident", 10, 2, 11, 1),
    Sketcher.Constraint("Coincident", 11, 2, 12, 1),
    Sketcher.Constraint("Coincident", 12, 2, 13, 1),
    Sketcher.Constraint("Coincident", 13, 2, 14, 1),
    Sketcher.Constraint("Coincident", 14, 2, 15, 1),
    Sketcher.Constraint("Coincident", 15, 2, 16, 1),
    Sketcher.Constraint("Coincident", 16, 2, 17, 1),
    Sketcher.Constraint("Coincident", 17, 2, 18, 1),
    Sketcher.Constraint("Coincident", 18, 2, 19, 1),
    Sketcher.Constraint("Coincident", 19, 2, 0, 1),
    Sketcher.Constraint("Horizontal", 0),
    Sketcher.Constraint("Vertical", 1),
    Sketcher.Constraint("Horizontal", 2),
    Sketcher.Constraint("Vertical", 3),
    Sketcher.Constraint("Horizontal", 4),
    Sketcher.Constraint("Vertical", 5),
    Sketcher.Constraint("Horizontal", 6),
    Sketcher.Constraint("Vertical", 7),
    Sketcher.Constraint("Horizontal", 8),
    Sketcher.Constraint("Vertical", 9),
    Sketcher.Constraint("Horizontal", 10),
    Sketcher.Constraint("Vertical", 11),
    Sketcher.Constraint("Horizontal", 12),
    Sketcher.Constraint("Vertical", 13),
    Sketcher.Constraint("Horizontal", 14),
    Sketcher.Constraint("Vertical", 15),
    Sketcher.Constraint("Horizontal", 16),
    Sketcher.Constraint("Vertical", 17),
    Sketcher.Constraint("Horizontal", 18),
    Sketcher.Constraint("Vertical", 19),
    Sketcher.Constraint("Equal", 20, 21),
    Sketcher.Constraint("Equal", 21, 22),
    Sketcher.Constraint("Equal", 22, 23),
    Sketcher.Constraint("PointOnObject", 1, 2, -1),
    Sketcher.Constraint("PointOnObject", 13, 2, -1),
    Sketcher.Constraint("PointOnObject", 17, 2, -1),
    Sketcher.Constraint("Horizontal", 20, 3, 21, 3),
    Sketcher.Constraint("Horizontal", 22, 3, 23, 3),
    Sketcher.Constraint("Horizontal", 4, 2, 7, 2),
    Sketcher.Constraint("Horizontal", 6, 2, 9, 2),
    Sketcher.Constraint("Horizontal", 8, 2, 11, 2),
    Sketcher.Constraint("Horizontal", 0, 2, 15, 2),
    Sketcher.Constraint("Vertical", 20, 3, 22, 3),
    Sketcher.Constraint("Vertical", 21, 3, 23, 3),
    Sketcher.Constraint("Vertical", 1, 2, 4, 2),
    Sketcher.Constraint("Vertical", 11, 2, 14, 2),
    Sketcher.Constraint("Vertical", 9, 2, 16, 2),
    Sketcher.Constraint("Vertical", 7, 2, 18, 2),
    Sketcher.Constraint("Equal", 6, 10),
    Sketcher.Constraint("Equal", 4, 12),
    Sketcher.Constraint("Equal", 1, 5),
    Sketcher.Constraint("Diameter", 20, Q("3.1 mm")),
    Sketcher.Constraint("DistanceX", 8, 1, 8, 2, Q("6 mm")),
    Sketcher.Constraint("DistanceY", 3, 1, 3, 2, Q("60 mm")),
    Sketcher.Constraint("DistanceX", 0, 2, 0, 1, Q("2.7 mm")),
    Sketcher.Constraint("DistanceY", 1, 2, 1, 1, Q("7.5 mm")),
    Sketcher.Constraint("DistanceY", -1, 1, 20, 3, Q("7 mm")),
    Sketcher.Constraint("DistanceY", -1, 1, 22, 3, Q("53 mm")),
    Sketcher.Constraint("DistanceX", 2, 2, -1, 1, Q("5 mm")),
    Sketcher.Constraint("DistanceX", 2, 2, 2, 1, Q("9.85 mm")),
    Sketcher.Constraint("DistanceX", -1, 1, 20, 3, Q("23.6 mm")),
    Sketcher.Constraint("DistanceX", 21, 3, -1, 1, Q("2.5 mm")),
])
sketch8.setExpression("Constraints[61]", "Params.sketch8_diameter")
sketch8.setExpression("Constraints[62]", "Params.sketch8_width")
sketch8.setExpression("Constraints[63]", "Params.sketch8_height")
sketch8.setExpression("Constraints[64]", "Params.sketch8_width2")
sketch8.setExpression("Constraints[65]", "Params.sketch8_height2")
pad3 = body.newObject("PartDesign::Pad", "Pad002")
pad3.Profile = sketch8
pad3.setExpression("Length", "Params.pad3_length")

doc.recompute()
